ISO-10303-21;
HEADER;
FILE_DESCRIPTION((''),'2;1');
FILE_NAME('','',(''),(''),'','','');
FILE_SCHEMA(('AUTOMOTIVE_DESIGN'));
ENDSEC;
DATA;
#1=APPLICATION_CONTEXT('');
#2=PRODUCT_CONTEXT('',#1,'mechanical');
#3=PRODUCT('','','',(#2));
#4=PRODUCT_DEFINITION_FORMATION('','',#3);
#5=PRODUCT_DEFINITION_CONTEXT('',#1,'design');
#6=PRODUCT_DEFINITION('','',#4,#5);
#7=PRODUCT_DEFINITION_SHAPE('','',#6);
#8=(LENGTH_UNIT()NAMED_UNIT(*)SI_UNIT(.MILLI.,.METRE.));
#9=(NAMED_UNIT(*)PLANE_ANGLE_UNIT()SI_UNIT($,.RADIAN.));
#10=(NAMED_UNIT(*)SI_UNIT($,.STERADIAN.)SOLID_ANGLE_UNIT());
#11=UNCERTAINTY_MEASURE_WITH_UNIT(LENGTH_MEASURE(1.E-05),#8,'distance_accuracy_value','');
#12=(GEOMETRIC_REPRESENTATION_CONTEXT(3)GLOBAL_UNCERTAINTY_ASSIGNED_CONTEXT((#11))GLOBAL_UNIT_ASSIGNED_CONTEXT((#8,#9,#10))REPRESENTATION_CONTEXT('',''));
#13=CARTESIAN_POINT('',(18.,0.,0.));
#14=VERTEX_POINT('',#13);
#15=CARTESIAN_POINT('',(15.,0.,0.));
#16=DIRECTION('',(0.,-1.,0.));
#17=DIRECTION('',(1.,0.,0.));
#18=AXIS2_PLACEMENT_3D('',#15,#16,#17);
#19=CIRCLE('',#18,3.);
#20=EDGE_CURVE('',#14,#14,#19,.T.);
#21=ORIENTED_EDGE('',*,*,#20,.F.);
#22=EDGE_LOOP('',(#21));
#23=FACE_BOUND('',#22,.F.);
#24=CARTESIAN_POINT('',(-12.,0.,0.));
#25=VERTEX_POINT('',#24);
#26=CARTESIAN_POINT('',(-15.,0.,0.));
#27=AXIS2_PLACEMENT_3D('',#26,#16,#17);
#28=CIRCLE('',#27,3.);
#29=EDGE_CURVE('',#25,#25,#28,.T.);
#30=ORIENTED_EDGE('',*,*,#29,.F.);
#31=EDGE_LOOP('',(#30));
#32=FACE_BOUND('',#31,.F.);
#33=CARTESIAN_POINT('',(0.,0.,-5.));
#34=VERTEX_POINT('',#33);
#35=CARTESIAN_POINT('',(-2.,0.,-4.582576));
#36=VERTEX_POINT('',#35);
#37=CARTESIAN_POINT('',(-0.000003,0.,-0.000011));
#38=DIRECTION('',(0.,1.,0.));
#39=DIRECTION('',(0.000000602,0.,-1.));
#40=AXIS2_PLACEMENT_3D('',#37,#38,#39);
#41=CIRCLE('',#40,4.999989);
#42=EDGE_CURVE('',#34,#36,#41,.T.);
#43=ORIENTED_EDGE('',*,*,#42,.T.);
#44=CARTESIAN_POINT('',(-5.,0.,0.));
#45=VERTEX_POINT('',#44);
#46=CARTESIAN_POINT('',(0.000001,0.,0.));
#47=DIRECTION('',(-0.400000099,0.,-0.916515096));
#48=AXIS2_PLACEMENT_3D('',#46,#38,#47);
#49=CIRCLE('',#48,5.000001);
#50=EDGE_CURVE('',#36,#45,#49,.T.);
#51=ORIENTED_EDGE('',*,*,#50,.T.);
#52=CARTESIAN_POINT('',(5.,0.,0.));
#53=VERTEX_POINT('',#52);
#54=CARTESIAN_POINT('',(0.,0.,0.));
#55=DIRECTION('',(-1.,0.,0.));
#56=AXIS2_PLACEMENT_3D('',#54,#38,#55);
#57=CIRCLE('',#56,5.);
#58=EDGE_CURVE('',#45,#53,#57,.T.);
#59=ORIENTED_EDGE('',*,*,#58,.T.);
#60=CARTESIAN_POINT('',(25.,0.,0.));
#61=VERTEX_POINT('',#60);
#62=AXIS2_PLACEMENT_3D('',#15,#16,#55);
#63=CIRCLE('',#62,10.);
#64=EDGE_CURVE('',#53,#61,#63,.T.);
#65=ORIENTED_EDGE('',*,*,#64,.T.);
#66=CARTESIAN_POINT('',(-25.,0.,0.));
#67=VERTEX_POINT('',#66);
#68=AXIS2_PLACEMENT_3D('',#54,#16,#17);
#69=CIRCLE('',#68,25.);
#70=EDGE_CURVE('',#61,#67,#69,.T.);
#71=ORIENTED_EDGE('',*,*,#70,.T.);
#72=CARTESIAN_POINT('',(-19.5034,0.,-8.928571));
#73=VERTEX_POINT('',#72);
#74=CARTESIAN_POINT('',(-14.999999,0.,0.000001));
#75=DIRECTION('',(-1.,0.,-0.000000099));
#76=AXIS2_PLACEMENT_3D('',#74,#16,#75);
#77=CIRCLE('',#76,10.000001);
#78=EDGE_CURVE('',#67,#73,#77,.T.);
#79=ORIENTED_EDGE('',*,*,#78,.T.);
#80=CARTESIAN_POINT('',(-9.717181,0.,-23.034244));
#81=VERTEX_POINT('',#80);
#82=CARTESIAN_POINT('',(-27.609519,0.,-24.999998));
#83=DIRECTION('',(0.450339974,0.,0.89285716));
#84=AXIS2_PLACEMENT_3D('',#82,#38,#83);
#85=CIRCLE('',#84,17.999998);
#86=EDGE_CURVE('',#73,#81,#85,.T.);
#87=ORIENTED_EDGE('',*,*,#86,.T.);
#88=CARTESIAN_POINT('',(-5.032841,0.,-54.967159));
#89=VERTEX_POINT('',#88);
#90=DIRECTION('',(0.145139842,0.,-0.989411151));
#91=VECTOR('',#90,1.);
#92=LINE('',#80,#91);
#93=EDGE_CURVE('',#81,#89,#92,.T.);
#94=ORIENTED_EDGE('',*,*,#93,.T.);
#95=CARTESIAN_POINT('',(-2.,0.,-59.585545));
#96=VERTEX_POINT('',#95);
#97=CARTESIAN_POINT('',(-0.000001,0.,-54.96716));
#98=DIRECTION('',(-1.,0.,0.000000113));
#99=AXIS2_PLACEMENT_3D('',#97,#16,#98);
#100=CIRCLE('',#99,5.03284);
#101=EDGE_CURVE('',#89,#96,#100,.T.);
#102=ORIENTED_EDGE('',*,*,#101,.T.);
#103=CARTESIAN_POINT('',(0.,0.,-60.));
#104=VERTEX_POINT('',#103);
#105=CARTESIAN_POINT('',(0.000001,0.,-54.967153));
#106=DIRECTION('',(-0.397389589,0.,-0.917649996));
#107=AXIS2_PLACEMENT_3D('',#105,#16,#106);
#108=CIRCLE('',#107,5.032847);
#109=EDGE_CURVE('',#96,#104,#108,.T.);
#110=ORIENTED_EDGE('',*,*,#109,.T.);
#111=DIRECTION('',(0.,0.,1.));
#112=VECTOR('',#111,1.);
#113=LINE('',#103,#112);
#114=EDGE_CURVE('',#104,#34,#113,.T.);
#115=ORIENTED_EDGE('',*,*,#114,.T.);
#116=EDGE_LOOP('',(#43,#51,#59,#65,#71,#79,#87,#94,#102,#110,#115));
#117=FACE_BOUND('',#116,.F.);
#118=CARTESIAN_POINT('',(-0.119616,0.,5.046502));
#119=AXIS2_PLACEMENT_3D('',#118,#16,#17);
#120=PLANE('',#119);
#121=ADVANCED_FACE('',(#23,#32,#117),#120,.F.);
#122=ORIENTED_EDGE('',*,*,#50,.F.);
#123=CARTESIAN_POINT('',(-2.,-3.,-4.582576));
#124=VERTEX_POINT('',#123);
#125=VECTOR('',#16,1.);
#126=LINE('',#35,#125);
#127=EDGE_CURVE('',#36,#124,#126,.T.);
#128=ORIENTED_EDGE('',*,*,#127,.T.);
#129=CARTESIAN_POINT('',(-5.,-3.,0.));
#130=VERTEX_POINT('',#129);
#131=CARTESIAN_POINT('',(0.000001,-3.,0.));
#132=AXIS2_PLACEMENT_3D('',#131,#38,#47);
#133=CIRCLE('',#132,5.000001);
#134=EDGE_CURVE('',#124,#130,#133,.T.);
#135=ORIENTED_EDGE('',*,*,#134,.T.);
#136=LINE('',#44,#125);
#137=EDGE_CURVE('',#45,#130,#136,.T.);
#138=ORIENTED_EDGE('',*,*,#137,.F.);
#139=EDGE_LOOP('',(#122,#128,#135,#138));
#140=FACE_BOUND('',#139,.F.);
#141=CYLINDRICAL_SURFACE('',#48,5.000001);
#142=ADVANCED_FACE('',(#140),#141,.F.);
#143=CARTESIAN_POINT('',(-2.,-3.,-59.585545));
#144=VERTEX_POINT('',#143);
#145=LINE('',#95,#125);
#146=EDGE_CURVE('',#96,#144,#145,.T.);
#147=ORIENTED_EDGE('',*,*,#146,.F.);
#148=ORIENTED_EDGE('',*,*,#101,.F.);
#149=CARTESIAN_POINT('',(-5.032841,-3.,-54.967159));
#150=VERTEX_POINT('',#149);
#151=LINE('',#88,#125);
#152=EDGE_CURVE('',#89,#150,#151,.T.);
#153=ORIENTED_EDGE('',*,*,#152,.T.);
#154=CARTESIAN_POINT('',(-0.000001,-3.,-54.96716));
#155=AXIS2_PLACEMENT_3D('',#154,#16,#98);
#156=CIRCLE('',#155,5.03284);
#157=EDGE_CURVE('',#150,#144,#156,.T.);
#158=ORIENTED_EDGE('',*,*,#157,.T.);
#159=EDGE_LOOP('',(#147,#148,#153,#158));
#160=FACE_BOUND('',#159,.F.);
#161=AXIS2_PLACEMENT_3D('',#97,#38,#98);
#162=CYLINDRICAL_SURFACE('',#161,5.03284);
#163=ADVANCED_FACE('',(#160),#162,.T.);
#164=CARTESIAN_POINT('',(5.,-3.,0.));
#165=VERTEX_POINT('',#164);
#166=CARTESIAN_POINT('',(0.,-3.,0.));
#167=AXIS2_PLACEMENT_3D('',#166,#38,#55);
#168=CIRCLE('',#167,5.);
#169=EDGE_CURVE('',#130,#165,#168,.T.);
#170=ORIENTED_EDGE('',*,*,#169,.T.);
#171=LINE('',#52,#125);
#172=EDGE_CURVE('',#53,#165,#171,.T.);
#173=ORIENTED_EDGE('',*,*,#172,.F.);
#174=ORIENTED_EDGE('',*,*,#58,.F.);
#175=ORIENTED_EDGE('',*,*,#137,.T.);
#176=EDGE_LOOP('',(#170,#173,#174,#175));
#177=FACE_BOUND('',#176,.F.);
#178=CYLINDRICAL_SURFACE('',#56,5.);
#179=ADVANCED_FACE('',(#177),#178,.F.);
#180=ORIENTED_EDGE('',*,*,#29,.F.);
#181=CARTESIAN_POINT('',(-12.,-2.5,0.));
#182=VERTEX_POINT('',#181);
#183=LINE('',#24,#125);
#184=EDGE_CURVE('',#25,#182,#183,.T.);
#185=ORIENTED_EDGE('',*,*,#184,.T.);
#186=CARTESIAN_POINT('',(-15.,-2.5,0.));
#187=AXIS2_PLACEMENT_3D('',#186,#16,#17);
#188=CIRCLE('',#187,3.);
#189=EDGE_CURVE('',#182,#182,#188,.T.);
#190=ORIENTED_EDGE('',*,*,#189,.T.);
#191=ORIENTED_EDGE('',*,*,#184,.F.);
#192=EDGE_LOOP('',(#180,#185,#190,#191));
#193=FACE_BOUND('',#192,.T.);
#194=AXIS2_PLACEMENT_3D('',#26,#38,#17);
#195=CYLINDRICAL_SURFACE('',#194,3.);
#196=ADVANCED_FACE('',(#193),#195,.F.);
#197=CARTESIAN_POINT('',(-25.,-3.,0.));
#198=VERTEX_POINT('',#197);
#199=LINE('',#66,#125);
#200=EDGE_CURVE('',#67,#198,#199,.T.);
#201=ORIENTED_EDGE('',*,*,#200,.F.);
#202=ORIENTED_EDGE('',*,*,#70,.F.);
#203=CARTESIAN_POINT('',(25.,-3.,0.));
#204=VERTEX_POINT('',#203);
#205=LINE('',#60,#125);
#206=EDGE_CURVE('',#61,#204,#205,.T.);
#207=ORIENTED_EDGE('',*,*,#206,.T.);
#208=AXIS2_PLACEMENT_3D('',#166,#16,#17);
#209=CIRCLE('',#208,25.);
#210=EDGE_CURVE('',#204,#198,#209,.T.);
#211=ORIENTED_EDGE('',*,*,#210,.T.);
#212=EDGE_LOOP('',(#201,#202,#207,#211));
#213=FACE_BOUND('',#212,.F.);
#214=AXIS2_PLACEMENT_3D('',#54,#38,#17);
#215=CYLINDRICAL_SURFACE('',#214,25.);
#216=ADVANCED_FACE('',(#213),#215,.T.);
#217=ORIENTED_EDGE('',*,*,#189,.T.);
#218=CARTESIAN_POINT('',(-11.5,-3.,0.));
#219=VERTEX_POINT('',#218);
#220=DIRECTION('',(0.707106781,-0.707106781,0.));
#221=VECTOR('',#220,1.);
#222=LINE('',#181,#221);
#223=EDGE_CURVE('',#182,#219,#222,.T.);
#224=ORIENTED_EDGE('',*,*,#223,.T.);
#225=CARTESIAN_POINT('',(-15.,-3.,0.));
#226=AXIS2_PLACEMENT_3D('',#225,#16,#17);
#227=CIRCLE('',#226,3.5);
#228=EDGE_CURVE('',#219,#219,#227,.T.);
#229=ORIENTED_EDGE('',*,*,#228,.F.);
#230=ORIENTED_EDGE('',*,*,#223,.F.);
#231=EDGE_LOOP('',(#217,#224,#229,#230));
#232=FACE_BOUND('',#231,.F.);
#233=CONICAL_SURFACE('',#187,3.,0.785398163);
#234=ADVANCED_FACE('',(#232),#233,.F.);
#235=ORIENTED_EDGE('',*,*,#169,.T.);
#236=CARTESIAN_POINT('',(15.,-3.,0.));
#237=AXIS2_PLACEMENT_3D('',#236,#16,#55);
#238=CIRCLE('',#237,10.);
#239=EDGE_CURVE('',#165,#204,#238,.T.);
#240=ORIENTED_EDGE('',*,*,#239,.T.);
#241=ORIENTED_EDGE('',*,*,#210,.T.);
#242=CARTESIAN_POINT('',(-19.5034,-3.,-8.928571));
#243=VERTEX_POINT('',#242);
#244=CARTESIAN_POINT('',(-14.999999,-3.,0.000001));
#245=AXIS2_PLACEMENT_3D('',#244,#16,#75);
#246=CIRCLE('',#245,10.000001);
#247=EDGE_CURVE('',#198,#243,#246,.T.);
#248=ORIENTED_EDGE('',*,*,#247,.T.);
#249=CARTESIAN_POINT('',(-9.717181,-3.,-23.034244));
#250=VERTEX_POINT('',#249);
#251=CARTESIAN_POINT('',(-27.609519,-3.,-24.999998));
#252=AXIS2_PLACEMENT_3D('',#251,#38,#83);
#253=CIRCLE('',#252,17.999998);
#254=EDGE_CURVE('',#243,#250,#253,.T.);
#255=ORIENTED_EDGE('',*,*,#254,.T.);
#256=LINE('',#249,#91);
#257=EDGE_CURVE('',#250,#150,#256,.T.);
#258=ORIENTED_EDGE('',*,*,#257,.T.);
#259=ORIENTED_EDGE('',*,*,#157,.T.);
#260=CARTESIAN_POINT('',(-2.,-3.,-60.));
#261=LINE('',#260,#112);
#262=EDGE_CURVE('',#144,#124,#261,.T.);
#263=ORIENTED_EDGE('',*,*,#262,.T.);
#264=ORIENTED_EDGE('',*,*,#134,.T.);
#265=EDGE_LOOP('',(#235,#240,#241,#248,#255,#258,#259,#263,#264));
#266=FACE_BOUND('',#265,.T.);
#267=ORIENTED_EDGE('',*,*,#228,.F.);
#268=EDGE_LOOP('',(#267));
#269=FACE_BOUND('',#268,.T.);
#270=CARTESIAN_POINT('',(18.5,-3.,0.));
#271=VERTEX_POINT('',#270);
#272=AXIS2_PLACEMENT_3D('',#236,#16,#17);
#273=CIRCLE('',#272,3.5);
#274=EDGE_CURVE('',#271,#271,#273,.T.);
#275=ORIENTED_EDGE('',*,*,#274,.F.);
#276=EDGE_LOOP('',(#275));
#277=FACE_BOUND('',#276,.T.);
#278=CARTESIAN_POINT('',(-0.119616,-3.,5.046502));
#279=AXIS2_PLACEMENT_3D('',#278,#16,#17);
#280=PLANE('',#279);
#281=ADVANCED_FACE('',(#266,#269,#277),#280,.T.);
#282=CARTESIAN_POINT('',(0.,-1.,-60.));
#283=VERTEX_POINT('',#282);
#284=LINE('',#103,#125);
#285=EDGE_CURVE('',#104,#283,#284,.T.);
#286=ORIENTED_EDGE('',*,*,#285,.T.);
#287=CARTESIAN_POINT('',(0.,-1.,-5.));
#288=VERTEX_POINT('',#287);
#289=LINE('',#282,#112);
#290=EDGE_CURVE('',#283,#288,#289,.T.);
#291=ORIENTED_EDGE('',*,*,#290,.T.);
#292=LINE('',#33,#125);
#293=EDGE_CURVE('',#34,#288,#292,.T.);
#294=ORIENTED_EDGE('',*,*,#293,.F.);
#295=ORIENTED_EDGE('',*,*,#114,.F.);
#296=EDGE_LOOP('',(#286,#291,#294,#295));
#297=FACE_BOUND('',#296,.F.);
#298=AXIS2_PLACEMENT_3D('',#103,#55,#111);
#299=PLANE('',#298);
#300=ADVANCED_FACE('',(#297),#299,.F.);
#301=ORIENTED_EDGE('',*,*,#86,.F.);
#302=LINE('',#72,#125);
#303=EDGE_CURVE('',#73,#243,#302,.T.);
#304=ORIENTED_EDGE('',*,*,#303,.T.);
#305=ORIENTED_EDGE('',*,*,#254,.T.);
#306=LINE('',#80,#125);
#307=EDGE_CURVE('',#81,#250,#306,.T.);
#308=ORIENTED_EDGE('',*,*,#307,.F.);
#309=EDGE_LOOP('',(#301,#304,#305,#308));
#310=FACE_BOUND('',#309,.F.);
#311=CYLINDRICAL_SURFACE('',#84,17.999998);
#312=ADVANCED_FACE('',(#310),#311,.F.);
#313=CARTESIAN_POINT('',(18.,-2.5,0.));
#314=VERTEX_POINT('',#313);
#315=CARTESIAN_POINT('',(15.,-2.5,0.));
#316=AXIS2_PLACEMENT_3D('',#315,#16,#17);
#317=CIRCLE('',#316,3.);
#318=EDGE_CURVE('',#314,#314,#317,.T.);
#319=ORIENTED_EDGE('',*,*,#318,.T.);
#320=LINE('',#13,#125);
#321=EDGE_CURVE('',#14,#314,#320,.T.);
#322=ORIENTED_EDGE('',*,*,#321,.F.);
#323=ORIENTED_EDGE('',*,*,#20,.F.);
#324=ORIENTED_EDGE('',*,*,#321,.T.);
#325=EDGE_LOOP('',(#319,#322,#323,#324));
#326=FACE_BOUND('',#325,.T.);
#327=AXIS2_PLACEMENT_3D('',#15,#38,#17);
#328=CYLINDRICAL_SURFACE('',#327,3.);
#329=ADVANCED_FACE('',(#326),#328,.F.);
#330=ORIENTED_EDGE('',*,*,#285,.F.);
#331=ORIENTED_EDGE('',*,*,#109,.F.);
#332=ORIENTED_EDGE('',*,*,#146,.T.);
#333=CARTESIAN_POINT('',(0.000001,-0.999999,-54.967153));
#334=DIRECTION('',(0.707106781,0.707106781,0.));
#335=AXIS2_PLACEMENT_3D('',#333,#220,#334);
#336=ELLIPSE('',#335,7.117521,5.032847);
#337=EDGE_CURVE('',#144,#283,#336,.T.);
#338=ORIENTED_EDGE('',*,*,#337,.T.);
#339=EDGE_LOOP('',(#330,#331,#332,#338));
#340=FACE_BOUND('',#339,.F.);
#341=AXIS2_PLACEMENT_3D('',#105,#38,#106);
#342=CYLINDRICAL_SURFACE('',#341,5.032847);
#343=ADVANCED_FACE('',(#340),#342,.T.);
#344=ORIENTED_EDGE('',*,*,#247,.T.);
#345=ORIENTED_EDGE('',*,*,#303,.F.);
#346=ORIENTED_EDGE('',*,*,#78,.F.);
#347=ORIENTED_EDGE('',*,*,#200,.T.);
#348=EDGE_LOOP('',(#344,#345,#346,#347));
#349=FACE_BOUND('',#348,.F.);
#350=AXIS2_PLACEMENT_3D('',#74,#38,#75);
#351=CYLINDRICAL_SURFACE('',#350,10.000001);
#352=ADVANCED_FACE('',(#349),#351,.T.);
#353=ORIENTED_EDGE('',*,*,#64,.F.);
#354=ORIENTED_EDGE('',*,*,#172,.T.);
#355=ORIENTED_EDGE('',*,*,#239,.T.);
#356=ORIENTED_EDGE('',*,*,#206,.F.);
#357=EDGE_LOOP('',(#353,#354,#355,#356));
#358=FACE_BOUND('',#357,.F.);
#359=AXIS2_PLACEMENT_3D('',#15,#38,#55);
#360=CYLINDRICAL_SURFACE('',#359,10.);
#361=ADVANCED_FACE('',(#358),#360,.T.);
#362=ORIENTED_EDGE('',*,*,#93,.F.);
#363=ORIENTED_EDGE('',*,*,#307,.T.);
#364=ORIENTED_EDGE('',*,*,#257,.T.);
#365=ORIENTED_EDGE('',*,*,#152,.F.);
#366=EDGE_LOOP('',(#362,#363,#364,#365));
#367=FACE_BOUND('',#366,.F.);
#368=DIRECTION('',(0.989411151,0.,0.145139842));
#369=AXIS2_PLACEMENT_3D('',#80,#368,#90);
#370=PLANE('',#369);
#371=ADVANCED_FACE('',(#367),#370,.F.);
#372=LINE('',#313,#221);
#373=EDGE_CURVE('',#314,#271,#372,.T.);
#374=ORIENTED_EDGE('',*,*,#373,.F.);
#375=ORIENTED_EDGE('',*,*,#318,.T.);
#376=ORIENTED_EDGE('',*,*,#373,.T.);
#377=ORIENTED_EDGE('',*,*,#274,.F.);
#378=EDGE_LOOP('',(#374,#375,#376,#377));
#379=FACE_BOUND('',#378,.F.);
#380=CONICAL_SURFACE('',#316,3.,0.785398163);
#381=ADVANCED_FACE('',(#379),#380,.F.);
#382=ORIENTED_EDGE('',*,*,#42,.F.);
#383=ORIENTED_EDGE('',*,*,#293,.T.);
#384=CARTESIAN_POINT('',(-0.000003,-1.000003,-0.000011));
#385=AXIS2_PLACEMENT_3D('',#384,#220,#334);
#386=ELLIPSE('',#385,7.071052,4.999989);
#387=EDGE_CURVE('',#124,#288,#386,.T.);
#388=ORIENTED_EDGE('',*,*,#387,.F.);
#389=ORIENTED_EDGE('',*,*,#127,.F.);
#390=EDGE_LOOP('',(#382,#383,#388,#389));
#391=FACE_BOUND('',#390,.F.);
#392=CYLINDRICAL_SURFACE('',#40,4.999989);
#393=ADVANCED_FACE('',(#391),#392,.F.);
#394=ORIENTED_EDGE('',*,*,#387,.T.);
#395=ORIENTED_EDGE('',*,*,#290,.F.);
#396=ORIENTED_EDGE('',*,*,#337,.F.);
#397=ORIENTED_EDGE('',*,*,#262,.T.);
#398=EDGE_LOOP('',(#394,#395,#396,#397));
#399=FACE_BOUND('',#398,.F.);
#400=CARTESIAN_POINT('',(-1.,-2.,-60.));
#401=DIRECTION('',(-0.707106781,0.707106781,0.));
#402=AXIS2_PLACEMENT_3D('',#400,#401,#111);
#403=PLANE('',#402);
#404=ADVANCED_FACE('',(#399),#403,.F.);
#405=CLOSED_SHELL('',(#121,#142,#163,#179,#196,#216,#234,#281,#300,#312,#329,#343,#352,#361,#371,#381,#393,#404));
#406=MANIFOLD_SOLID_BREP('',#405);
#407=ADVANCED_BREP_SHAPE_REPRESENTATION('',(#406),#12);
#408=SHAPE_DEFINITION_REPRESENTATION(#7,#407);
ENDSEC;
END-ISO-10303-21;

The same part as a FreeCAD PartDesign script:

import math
import FreeCAD as App
import Part
import Sketcher

V = App.Vector


def edges_at(feature, points):
    """Names of the edges that pass closest to the given points."""
    edges = feature.Shape.Edges
    near = lambda p: min(range(len(edges)), key=lambda i: edges[i].distToShape(Part.Vertex(*p))[0])
    return sorted({f"Edge{near(p) + 1}" for p in points})

doc = App.newDocument("Part")
body = doc.addObject("PartDesign::Body", "Body")

sketch1 = doc.addObject("Sketcher::SketchObject", "Sketch")
body.addObject(sketch1)
sketch1.AttachmentSupport = (doc.XZ_Plane, [""])
sketch1.MapMode = "FlatFace"
sketch1.addGeometry([
    Part.ArcOfCircle(Part.Circle(V(15, 0, 0), V(0, 0, 1), 10), math.radians(180), math.radians(360)),
    Part.ArcOfCircle(Part.Circle(V(0, 0, 0), V(0, 0, 1), 25), math.radians(0), math.radians(180)),
    Part.ArcOfCircle(Part.Circle(V(-15, 0, 0), V(0, 0, 1), 10), math.radians(-180), math.radians(-117)),
    Part.ArcOfCircle(Part.Circle(V(-27.6, -25, 0), V(0, 0, 1), 18), math.radians(6), math.radians(63)),
    Part.LineSegment(V(-9.7, -23, 0), V(-5, -55, 0)),
    Part.ArcOfCircle(Part.Circle(V(0, -55, 0), V(0, 0, 1), 5), math.radians(180), math.radians(247)),
    Part.ArcOfCircle(Part.Circle(V(0, -55, 0), V(0, 0, 1), 5), math.radians(-113), math.radians(-90)),
    Part.LineSegment(V(0, -60, 0), V(0, -5, 0)),
    Part.ArcOfCircle(Part.Circle(V(0, 0, 0), V(0, 0, 1), 5), math.radians(-114), math.radians(-90)),
    Part.ArcOfCircle(Part.Circle(V(0, 0, 0), V(0, 0, 1), 5), math.radians(-180), math.radians(-114)),
    Part.ArcOfCircle(Part.Circle(V(0, 0, 0), V(0, 0, 1), 5), math.radians(0), math.radians(180)),
    Part.Circle(V(-15, 0, 0), V(0, 0, 1), 3),
    Part.Circle(V(15, 0, 0), V(0, 0, 1), 3),
], False)
sketch1.addConstraint([
    Sketcher.Constraint("Tangent", 0, 2, 1, 1),
    Sketcher.Constraint("Tangent", 1, 2, 2, 1),
    Sketcher.Constraint("Tangent", 2, 2, 3, 2),
    Sketcher.Constraint("Coincident", 3, 1, 4, 1),
    Sketcher.Constraint("Coincident", 4, 2, 5, 1),
    Sketcher.Constraint("Tangent", 5, 2, 6, 1),
    Sketcher.Constraint("Coincident", 6, 2, 7, 1),
    Sketcher.Constraint("Coincident", 7, 2, 8, 2),
    Sketcher.Constraint("Tangent", 8, 1, 9, 2),
    Sketcher.Constraint("Tangent", 9, 1, 10, 2),
    Sketcher.Constraint("Tangent", 10, 1, 0, 1),
    Sketcher.Constraint("Vertical", 7),
    Sketcher.Constraint("Coincident", 1, 3, -1, 1),
    Sketcher.Constraint("Coincident", 9, 3, -1, 1),
    Sketcher.Constraint("Coincident", 11, 3, 2, 3),
    Sketcher.Constraint("Coincident", 12, 3, 0, 3),
    Sketcher.Constraint("Equal", 0, 2),
    Sketcher.Constraint("Equal", 9, 10),
    Sketcher.Constraint("Equal", 11, 12),
    Sketcher.Constraint("PointOnObject", 0, 3, -1),
    Sketcher.Constraint("PointOnObject", 2, 3, -1),
    Sketcher.Constraint("PointOnObject", 5, 3, -2),
    Sketcher.Constraint("PointOnObject", 6, 3, -2),
    Sketcher.Constraint("PointOnObject", 6, 2, -2),
    Sketcher.Constraint("PointOnObject", 9, 1, -1),
    Sketcher.Constraint("Horizontal", 5, 3, 4, 2),
    Sketcher.Constraint("Vertical", 5, 2, 8, 1),
    Sketcher.Constraint("Diameter", 11, 6.0),
    Sketcher.Constraint("Radius", 0, 10.0),
    Sketcher.Constraint("Radius", 1, 25.0),
    Sketcher.Constraint("Radius", 3, 17.999998),
    Sketcher.Constraint("DistanceY", 7, 1, 7, 2, 55.0),
    Sketcher.Constraint("DistanceY", 3, 3, -1, 1, 24.999998),
    Sketcher.Constraint("DistanceX", 5, 2, -1, 1, 2.0),
    Sketcher.Constraint("DistanceY", 6, 2, -1, 1, 60.0),
    Sketcher.Constraint("Radius", 5, 5.03284),
    Sketcher.Constraint("DistanceY", 5, 2, 3, 1, 36.551301),
])
pad1 = doc.addObject("PartDesign::Pad", "Pad")
body.addObject(pad1)
pad1.Profile = sketch1
pad1.Length = 3
doc.recompute()

chamfer = doc.addObject("PartDesign::Chamfer", "Chamfer")
body.addObject(chamfer)
chamfer.Base = (pad1, edges_at(pad1, [(-18, -3, 0), (12, -3, 0)]))
chamfer.Size = 0.5
doc.recompute()

chamfer2 = doc.addObject("PartDesign::Chamfer", "Chamfer001")
body.addObject(chamfer2)
chamfer2.Base = (chamfer, edges_at(chamfer, [(0, -3, -32.5)]))
chamfer2.Size = 2

doc.recompute()
